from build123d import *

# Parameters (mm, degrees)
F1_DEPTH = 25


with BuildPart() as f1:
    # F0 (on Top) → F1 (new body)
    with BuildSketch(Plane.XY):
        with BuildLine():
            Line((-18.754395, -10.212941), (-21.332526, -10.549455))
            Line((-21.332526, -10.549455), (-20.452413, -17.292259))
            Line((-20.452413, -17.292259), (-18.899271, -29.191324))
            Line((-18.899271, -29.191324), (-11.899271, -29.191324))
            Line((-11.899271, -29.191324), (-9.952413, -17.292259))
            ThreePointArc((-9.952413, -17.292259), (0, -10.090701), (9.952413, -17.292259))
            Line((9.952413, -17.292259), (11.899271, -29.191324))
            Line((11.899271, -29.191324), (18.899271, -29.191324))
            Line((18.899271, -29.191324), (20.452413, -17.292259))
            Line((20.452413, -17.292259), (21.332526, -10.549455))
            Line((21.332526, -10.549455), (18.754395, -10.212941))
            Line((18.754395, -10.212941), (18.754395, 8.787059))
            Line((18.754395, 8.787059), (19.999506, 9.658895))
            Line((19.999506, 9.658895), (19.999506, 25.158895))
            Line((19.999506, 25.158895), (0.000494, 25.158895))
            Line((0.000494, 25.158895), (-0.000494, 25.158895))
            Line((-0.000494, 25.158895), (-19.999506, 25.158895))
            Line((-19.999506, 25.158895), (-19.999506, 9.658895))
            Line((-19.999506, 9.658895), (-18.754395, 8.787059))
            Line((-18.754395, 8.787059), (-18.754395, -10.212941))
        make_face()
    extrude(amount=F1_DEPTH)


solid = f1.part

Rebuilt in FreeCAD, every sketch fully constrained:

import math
import FreeCAD as App
import Part
import Sketcher
Q = App.Units.Quantity

doc = App.newDocument("Part")
params = doc.addObject("Spreadsheet::Sheet", "Params")
for row, (alias, value) in enumerate([
    ("sketch1_width", "7 mm"),
    ("sketch1_height", "19 mm"),
    ("sketch1_length", "12 mm"),
    ("sketch1_height2", "15.5 mm"),
    ("sketch1_length2", "2.6 mm"),
    ("pad1_length", "25 mm"),
], start=1):
    params.set(f"A{row}", alias)
    params.set(f"B{row}", "=" + value)
    params.setAlias(f"B{row}", alias)

body = doc.addObject("PartDesign::Body", "Body")

sketch1 = body.newObject("Sketcher::SketchObject", "Sketch")
sketch1.AttachmentSupport = (doc.getObject("XY_Plane"), [""])
sketch1.MapMode = "FlatFace"
sketch1.addGeometry([
    Part.LineSegment(App.Vector(-18.754395, -10.212941, 0), App.Vector(-21.332526, -10.549455, 0)),
    Part.LineSegment(App.Vector(-21.332526, -10.549455, 0), App.Vector(-20.452413, -17.292259, 0)),
    Part.LineSegment(App.Vector(-20.452413, -17.292259, 0), App.Vector(-18.899271, -29.191324, 0)),
    Part.LineSegment(App.Vector(-18.899271, -29.191324, 0), App.Vector(-11.899271, -29.191324, 0)),
    Part.LineSegment(App.Vector(-11.899271, -29.191324, 0), App.Vector(-9.952413, -17.292259, 0)),
    Part.ArcOfCircle(Part.Circle(App.Vector(0, -20.568501, 0), App.Vector(0, 0, 1), 10.4778), math.radians(18.221063), math.radians(161.778937)),
    Part.LineSegment(App.Vector(9.952413, -17.292259, 0), App.Vector(11.899271, -29.191324, 0)),
    Part.LineSegment(App.Vector(11.899271, -29.191324, 0), App.Vector(18.899271, -29.191324, 0)),
    Part.LineSegment(App.Vector(18.899271, -29.191324, 0), App.Vector(20.452413, -17.292259, 0)),
    Part.LineSegment(App.Vector(20.452413, -17.292259, 0), App.Vector(21.332526, -10.549455, 0)),
    Part.LineSegment(App.Vector(21.332526, -10.549455, 0), App.Vector(18.754395, -10.212941, 0)),
    Part.LineSegment(App.Vector(18.754395, -10.212941, 0), App.Vector(18.754395, 8.787059, 0)),
    Part.LineSegment(App.Vector(18.754395, 8.787059, 0), App.Vector(19.999506, 9.658895, 0)),
    Part.LineSegment(App.Vector(19.999506, 9.658895, 0), App.Vector(19.999506, 25.158895, 0)),
    Part.LineSegment(App.Vector(19.999506, 25.158895, 0), App.Vector(-19.999506, 25.158895, 0)),
    Part.LineSegment(App.Vector(-19.999506, 25.158895, 0), App.Vector(-19.999506, 9.658895, 0)),
    Part.LineSegment(App.Vector(-19.999506, 9.658895, 0), App.Vector(-18.754395, 8.787059, 0)),
    Part.LineSegment(App.Vector(-18.754395, 8.787059, 0), App.Vector(-18.754395, -10.212941, 0)),
], False)
sketch1.addConstraint([
    Sketcher.Constraint("Coincident", 0, 2, 1, 1),
    Sketcher.Constraint("Coincident", 1, 2, 2, 1),
    Sketcher.Constraint("Coincident", 2, 2, 3, 1),
    Sketcher.Constraint("Coincident", 3, 2, 4, 1),
    Sketcher.Constraint("Coincident", 4, 2, 5, 2),
    Sketcher.Constraint("Coincident", 5, 1, 6, 1),
    Sketcher.Constraint("Coincident", 6, 2, 7, 1),
    Sketcher.Constraint("Coincident", 7, 2, 8, 1),
    Sketcher.Constraint("Coincident", 8, 2, 9, 1),
    Sketcher.Constraint("Coincident", 9, 2, 10, 1),
    Sketcher.Constraint("Coincident", 10, 2, 11, 1),
    Sketcher.Constraint("Coincident", 11, 2, 12, 1),
    Sketcher.Constraint("Coincident", 12, 2, 13, 1),
    Sketcher.Constraint("Coincident", 13, 2, 14, 1),
    Sketcher.Constraint("Coincident", 14, 2, 15, 1),
    Sketcher.Constraint("Coincident", 15, 2, 16, 1),
    Sketcher.Constraint("Coincident", 16, 2, 17, 1),
    Sketcher.Constraint("Coincident", 17, 2, 0, 1),
    Sketcher.Constraint("Horizontal", 3),
    Sketcher.Constraint("Horizontal", 7),
    Sketcher.Constraint("Vertical", 11),
    Sketcher.Constraint("Vertical", 13),
    Sketcher.Constraint("Horizontal", 14),
    Sketcher.Constraint("Vertical", 15),
    Sketcher.Constraint("Vertical", 17),
    Sketcher.Constraint("Symmetric", 4, 2, 5, 1, -2),
    Sketcher.Constraint("Symmetric", 3, 2, 6, 2, -2),
    Sketcher.Constraint("Symmetric", 1, 2, 8, 2, -2),
    Sketcher.Constraint("Symmetric", 0, 2, 9, 2, -2),
    Sketcher.Constraint("Symmetric", 12, 2, 15, 2, -2),
    Sketcher.Constraint("Symmetric", 11, 2, 16, 2, -2),
    Sketcher.Constraint("Perpendicular", 0, 1),
    Sketcher.Constraint("Parallel", 1, 2),
    Sketcher.Constraint("Parallel", 8, 9),
    Sketcher.Constraint("Perpendicular", 9, 10),
    Sketcher.Constraint("Horizontal", 1, 2, 4, 2),
    Sketcher.Constraint("DistanceX", 3, 1, 3, 2, 7.0),
    Sketcher.Constraint("DistanceY", 11, 1, 11, 2, 19.0),
    Sketcher.Constraint("Angle", 12, Q("34.999997 deg")),
    Sketcher.Constraint("Distance", 2, 12.0),
    Sketcher.Constraint("DistanceY", 13, 1, 13, 2, 15.5),
    Sketcher.Constraint("Distance", 0, 2.6),
    Sketcher.Constraint("Distance", 1, 6.8),
    Sketcher.Constraint("Radius", 5, 10.4778),
    Sketcher.Constraint("DistanceX", 1, 2, 4, 2, 10.5),
    Sketcher.Constraint("Distance", 12, 1.52),
    Sketcher.Constraint("DistanceY", 5, 3, -1, 1, 20.568501),
    Sketcher.Constraint("DistanceX", 14, 2, 11, 2, 38.753901),
    Sketcher.Constraint("Distance", 4, 12.05728),
])
sketch1.setExpression("Constraints[36]", "Params.sketch1_width")
sketch1.setExpression("Constraints[37]", "Params.sketch1_height")
sketch1.setExpression("Constraints[39]", "Params.sketch1_length")
sketch1.setExpression("Constraints[40]", "Params.sketch1_height2")
sketch1.setExpression("Constraints[41]", "Params.sketch1_length2")
pad1 = body.newObject("PartDesign::Pad", "Pad")
pad1.Profile = sketch1
pad1.setExpression("Length", "Params.pad1_length")

doc.recompute()
